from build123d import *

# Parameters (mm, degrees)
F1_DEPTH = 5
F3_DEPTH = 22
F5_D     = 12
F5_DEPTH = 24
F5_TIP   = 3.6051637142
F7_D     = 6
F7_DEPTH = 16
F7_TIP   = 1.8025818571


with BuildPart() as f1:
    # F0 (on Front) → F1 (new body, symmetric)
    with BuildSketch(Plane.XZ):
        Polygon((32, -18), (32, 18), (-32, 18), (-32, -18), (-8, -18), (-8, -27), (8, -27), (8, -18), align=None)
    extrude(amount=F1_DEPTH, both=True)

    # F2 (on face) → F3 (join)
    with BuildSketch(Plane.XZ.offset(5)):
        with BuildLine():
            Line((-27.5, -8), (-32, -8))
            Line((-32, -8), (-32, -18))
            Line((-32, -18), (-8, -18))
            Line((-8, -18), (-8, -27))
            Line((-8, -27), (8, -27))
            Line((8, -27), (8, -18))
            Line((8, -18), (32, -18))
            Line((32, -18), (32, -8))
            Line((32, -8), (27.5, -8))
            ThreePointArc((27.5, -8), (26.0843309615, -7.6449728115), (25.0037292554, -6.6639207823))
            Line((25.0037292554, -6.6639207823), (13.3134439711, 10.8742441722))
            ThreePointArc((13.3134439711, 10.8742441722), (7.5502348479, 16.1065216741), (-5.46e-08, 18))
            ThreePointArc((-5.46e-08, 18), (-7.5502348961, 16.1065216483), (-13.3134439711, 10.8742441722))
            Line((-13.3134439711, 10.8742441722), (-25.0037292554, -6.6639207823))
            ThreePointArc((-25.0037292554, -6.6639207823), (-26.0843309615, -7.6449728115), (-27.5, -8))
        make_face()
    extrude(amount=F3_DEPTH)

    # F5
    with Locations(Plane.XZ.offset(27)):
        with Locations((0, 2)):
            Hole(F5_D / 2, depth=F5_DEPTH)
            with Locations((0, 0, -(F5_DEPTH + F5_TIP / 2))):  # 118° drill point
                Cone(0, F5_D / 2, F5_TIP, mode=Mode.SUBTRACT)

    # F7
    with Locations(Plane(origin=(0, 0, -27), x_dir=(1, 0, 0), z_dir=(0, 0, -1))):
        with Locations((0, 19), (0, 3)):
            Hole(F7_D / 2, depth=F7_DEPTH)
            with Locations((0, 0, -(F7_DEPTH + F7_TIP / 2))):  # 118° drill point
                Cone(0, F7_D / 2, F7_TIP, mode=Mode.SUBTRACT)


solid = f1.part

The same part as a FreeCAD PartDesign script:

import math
import FreeCAD as App
import Part
import Sketcher


def add_polygon(sketch, points):
    """Adds a closed chain of lines whose ends are joined by coincident constraints."""
    first, n = sketch.GeometryCount, len(points)
    for a, b in zip(points, points[1:] + points[:1]):
        sketch.addGeometry(Part.LineSegment(App.Vector(*a, 0), App.Vector(*b, 0)), False)
    for i in range(n):
        sketch.addConstraint(Sketcher.Constraint("Coincident", first + i, 2, first + (i + 1) % n, 1))

doc = App.newDocument("Part")
body = doc.addObject("PartDesign::Body", "Body")

# Sketch on XZ plane
sketch1 = body.newObject("Sketcher::SketchObject", "Sketch")
sketch1.AttachmentSupport = (doc.getObject("XZ_Plane"), [""])
sketch1.MapMode = "FlatFace"
add_polygon(sketch1, [(32, -18), (32, 18), (-32, 18), (-32, -18), (-8, -18), (-8, -27), (8, -27), (8, -18)])  # lines 0-7
sketch1.addConstraint(Sketcher.Constraint("Vertical", 0))
sketch1.addConstraint(Sketcher.Constraint("Horizontal", 1))
sketch1.addConstraint(Sketcher.Constraint("Vertical", 2))
sketch1.addConstraint(Sketcher.Constraint("Horizontal", 3))
sketch1.addConstraint(Sketcher.Constraint("Vertical", 4))
sketch1.addConstraint(Sketcher.Constraint("Horizontal", 5))
sketch1.addConstraint(Sketcher.Constraint("Vertical", 6))
sketch1.addConstraint(Sketcher.Constraint("Horizontal", 7))
sketch1.addConstraint(Sketcher.Constraint("Symmetric", 0, 2, 2, 2, -1, 1))
sketch1.addConstraint(Sketcher.Constraint("Symmetric", 3, 2, 6, 2, -2))
sketch1.addConstraint(Sketcher.Constraint("DistanceX", 1, 2, 1, 1, 64.0))
sketch1.addConstraint(Sketcher.Constraint("DistanceX", 3, 1, 3, 2, 24.0))
sketch1.addConstraint(Sketcher.Constraint("DistanceY", 0, 1, 0, 2, 36.0))
sketch1.addConstraint(Sketcher.Constraint("DistanceY", 4, 2, 4, 1, 9.0))
pad1 = body.newObject("PartDesign::Pad", "Pad")
pad1.Profile = sketch1
pad1.Length = 10
pad1.Midplane = True

# Sketch on XZ plane
sketch2 = body.newObject("Sketcher::SketchObject", "Sketch001")
sketch2.AttachmentSupport = (doc.getObject("XZ_Plane"), [""])
sketch2.MapMode = "FlatFace"
sketch2.AttachmentOffset = App.Placement(App.Vector(0, 0, 5), App.Rotation())
sketch2.addGeometry(Part.LineSegment(App.Vector(-27.5, -8, 0), App.Vector(-32, -8, 0)), False)
sketch2.addGeometry(Part.LineSegment(App.Vector(-32, -8, 0), App.Vector(-32, -18, 0)), False)
sketch2.addGeometry(Part.LineSegment(App.Vector(-32, -18, 0), App.Vector(-8, -18, 0)), False)
sketch2.addGeometry(Part.LineSegment(App.Vector(-8, -18, 0), App.Vector(-8, -27, 0)), False)
sketch2.addGeometry(Part.LineSegment(App.Vector(-8, -27, 0), App.Vector(8, -27, 0)), False)
sketch2.addGeometry(Part.LineSegment(App.Vector(8, -27, 0), App.Vector(8, -18, 0)), False)
sketch2.addGeometry(Part.LineSegment(App.Vector(8, -18, 0), App.Vector(32, -18, 0)), False)
sketch2.addGeometry(Part.LineSegment(App.Vector(32, -18, 0), App.Vector(32, -8, 0)), False)
sketch2.addGeometry(Part.LineSegment(App.Vector(32, -8, 0), App.Vector(27.5, -8, 0)), False)
sketch2.addGeometry(Part.ArcOfCircle(Part.Circle(App.Vector(27.5, -5, 0), App.Vector(0, 0, 1), 3), math.radians(-146.31406), math.radians(-90)), False)
sketch2.addGeometry(Part.LineSegment(App.Vector(25.003729, -6.663921, 0), App.Vector(13.313444, 10.874244, 0)), False)
sketch2.addGeometry(Part.ArcOfCircle(Part.Circle(App.Vector(0, 2, 0), App.Vector(0, 0, 1), 16), math.radians(33.68594), math.radians(90)), False)
sketch2.addGeometry(Part.ArcOfCircle(Part.Circle(App.Vector(0, 2, 0), App.Vector(0, 0, 1), 16), math.radians(90), math.radians(146.31406)), False)
sketch2.addGeometry(Part.LineSegment(App.Vector(-13.313444, 10.874244, 0), App.Vector(-25.003729, -6.663921, 0)), False)
sketch2.addGeometry(Part.ArcOfCircle(Part.Circle(App.Vector(-27.5, -5, 0), App.Vector(0, 0, 1), 3), math.radians(-90), math.radians(-33.68594)), False)
sketch2.addConstraint(Sketcher.Constraint("Coincident", 0, 2, 1, 1))
sketch2.addConstraint(Sketcher.Constraint("Coincident", 1, 2, 2, 1))
sketch2.addConstraint(Sketcher.Constraint("Coincident", 2, 2, 3, 1))
sketch2.addConstraint(Sketcher.Constraint("Coincident", 3, 2, 4, 1))
sketch2.addConstraint(Sketcher.Constraint("Coincident", 4, 2, 5, 1))
sketch2.addConstraint(Sketcher.Constraint("Coincident", 5, 2, 6, 1))
sketch2.addConstraint(Sketcher.Constraint("Coincident", 6, 2, 7, 1))
sketch2.addConstraint(Sketcher.Constraint("Coincident", 7, 2, 8, 1))
sketch2.addConstraint(Sketcher.Constraint("Tangent", 8, 2, 9, 2))
sketch2.addConstraint(Sketcher.Constraint("Tangent", 9, 1, 10, 1))
sketch2.addConstraint(Sketcher.Constraint("Tangent", 10, 2, 11, 1))
sketch2.addConstraint(Sketcher.Constraint("Tangent", 11, 2, 12, 1))
sketch2.addConstraint(Sketcher.Constraint("Tangent", 12, 2, 13, 1))
sketch2.addConstraint(Sketcher.Constraint("Tangent", 13, 2, 14, 2))
sketch2.addConstraint(Sketcher.Constraint("Tangent", 14, 1, 0, 1))
sketch2.addConstraint(Sketcher.Constraint("Horizontal", 0))
sketch2.addConstraint(Sketcher.Constraint("Vertical", 1))
sketch2.addConstraint(Sketcher.Constraint("Horizontal", 2))
sketch2.addConstraint(Sketcher.Constraint("Vertical", 3))
sketch2.addConstraint(Sketcher.Constraint("Horizontal", 4))
sketch2.addConstraint(Sketcher.Constraint("Vertical", 5))
sketch2.addConstraint(Sketcher.Constraint("Horizontal", 6))
sketch2.addConstraint(Sketcher.Constraint("Vertical", 7))
sketch2.addConstraint(Sketcher.Constraint("Horizontal", 8))
sketch2.addConstraint(Sketcher.Constraint("Equal", 11, 12))
sketch2.addConstraint(Sketcher.Constraint("Equal", 9, 14))
sketch2.addConstraint(Sketcher.Constraint("Symmetric", 9, 3, 14, 3, -2))
sketch2.addConstraint(Sketcher.Constraint("Symmetric", 2, 2, 5, 2, -2))
sketch2.addConstraint(Sketcher.Constraint("PointOnObject", 11, 3, -2))
sketch2.addConstraint(Sketcher.Constraint("PointOnObject", 11, 2, -2))
sketch2.addConstraint(Sketcher.Constraint("Equal", 2, 6))
sketch2.addConstraint(Sketcher.Constraint("Radius", 9, 3.0))
sketch2.addConstraint(Sketcher.Constraint("Radius", 11, 16.0))
sketch2.addConstraint(Sketcher.Constraint("DistanceX", 2, 1, 2, 2, 24.0))
sketch2.addConstraint(Sketcher.Constraint("DistanceX", 4, 1, 4, 2, 16.0))
sketch2.addConstraint(Sketcher.Constraint("DistanceY", 1, 2, 1, 1, 10.0))
sketch2.addConstraint(Sketcher.Constraint("DistanceY", 3, 2, 3, 1, 9.0))
sketch2.addConstraint(Sketcher.Constraint("DistanceX", 0, 2, 0, 1, 4.5))
sketch2.addConstraint(Sketcher.Constraint("DistanceY", 9, 3, -1, 1, 5.0))
sketch2.addConstraint(Sketcher.Constraint("DistanceY", -1, 1, 11, 3, 2.0))
pad2 = body.newObject("PartDesign::Pad", "Pad001")
pad2.Profile = sketch2
pad2.Length = 22

# Sketch on XZ plane
sketch3 = body.newObject("Sketcher::SketchObject", "Sketch002")
sketch3.AttachmentSupport = (doc.getObject("XZ_Plane"), [""])
sketch3.MapMode = "FlatFace"
sketch3.AttachmentOffset = App.Placement(App.Vector(0, 0, 27), App.Rotation())
sketch3.addGeometry(Part.Circle(App.Vector(0, 2, 0), App.Vector(0, 0, 1), 6), False)
sketch3.addConstraint(Sketcher.Constraint("PointOnObject", 0, 3, -2))
sketch3.addConstraint(Sketcher.Constraint("Diameter", 0, 12.0))
sketch3.addConstraint(Sketcher.Constraint("DistanceY", -1, 1, 0, 3, 2.0))
doc.recompute()
hole = body.newObject("PartDesign::Hole", "Hole")
hole.Profile = sketch3
hole.ThreadType = "None"
hole.Diameter = 12
hole.DepthType = "Dimension"
hole.Depth = 24
hole.DrillPoint = "Angled"
hole.DrillPointAngle = 118

# Sketch on XY plane
sketch4 = body.newObject("Sketcher::SketchObject", "Sketch003")
sketch4.AttachmentSupport = (doc.getObject("XY_Plane"), [""])
sketch4.MapMode = "FlatFace"
sketch4.AttachmentOffset = App.Placement(App.Vector(0, 0, -27), App.Rotation())
sketch4.addGeometry(Part.Circle(App.Vector(0, -19, 0), App.Vector(0, 0, 1), 3), False)
sketch4.addGeometry(Part.Circle(App.Vector(0, -3, 0), App.Vector(0, 0, 1), 3), False)
sketch4.addConstraint(Sketcher.Constraint("Equal", 0, 1))
sketch4.addConstraint(Sketcher.Constraint("PointOnObject", 0, 3, -2))
sketch4.addConstraint(Sketcher.Constraint("PointOnObject", 1, 3, -2))
sketch4.addConstraint(Sketcher.Constraint("Diameter", 0, 6.0))
sketch4.addConstraint(Sketcher.Constraint("DistanceY", 0, 3, -1, 1, 19.0))
sketch4.addConstraint(Sketcher.Constraint("DistanceY", 1, 3, -1, 1, 3.0))
doc.recompute()
hole2 = body.newObject("PartDesign::Hole", "Hole001")
hole2.Profile = sketch4
hole2.ThreadType = "None"
hole2.Diameter = 6
hole2.DepthType = "Dimension"
hole2.Depth = 16
hole2.DrillPoint = "Angled"
hole2.DrillPointAngle = 118
hole2.Reversed = True

doc.recompute()
